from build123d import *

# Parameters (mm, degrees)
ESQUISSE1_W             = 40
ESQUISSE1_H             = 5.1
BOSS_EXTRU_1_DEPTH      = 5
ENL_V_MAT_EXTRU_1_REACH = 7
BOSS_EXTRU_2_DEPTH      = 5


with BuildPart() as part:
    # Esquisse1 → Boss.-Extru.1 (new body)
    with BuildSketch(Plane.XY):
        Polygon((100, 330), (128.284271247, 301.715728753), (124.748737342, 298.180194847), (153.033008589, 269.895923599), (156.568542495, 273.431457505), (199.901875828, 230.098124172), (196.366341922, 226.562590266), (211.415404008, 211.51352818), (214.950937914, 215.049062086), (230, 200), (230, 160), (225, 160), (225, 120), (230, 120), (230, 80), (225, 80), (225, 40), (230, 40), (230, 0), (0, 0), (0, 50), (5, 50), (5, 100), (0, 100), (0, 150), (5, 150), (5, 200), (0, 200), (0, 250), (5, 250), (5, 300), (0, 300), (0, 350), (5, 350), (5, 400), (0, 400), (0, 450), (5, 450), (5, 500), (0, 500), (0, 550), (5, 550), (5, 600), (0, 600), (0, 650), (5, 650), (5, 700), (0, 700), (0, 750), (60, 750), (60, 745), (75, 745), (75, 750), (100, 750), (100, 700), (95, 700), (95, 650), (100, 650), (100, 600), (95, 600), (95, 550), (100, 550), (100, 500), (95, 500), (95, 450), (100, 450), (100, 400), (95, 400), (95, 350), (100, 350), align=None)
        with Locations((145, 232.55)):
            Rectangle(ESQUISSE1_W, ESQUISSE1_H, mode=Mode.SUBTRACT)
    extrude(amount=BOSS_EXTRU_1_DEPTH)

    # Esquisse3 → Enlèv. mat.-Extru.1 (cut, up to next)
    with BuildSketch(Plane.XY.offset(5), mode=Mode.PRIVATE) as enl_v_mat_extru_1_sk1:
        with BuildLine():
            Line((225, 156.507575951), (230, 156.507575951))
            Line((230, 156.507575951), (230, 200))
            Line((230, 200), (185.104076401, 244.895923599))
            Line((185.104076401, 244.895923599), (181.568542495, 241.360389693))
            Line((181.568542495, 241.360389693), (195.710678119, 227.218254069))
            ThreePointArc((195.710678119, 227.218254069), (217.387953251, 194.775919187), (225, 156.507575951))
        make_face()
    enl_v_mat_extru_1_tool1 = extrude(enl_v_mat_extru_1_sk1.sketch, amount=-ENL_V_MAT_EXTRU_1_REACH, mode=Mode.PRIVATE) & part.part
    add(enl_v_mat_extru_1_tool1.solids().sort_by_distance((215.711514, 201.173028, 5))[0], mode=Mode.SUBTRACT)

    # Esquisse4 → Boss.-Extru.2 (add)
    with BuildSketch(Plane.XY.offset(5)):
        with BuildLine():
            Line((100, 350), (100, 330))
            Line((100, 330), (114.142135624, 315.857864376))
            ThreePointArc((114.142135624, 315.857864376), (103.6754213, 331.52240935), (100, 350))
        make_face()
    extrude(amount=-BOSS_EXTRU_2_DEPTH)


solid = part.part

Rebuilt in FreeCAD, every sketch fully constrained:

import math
import FreeCAD as App
import Part
import Sketcher

V = App.Vector
Q = App.Units.Quantity

doc = App.newDocument("Part")
params = doc.addObject("Spreadsheet::Sheet", "Params")
for row, (alias, value) in enumerate([
    ("sketch1_width", "5 mm"),
    ("sketch1_width2", "25 mm"),
    ("sketch1_width3", "15 mm"),
    ("sketch1_width4", "60 mm"),
    ("sketch1_width5", "230 mm"),
    ("pad1_length", "5 mm"),
    ("sketch2_radius", "100 mm"),
    ("sketch2_width", "5 mm"),
    ("sketch2_length", "5 mm"),
    ("sketch2_length2", "20 mm"),
    ("sketch3_height", "20 mm"),
    ("pad2_length", "5 mm"),
], start=1):
    params.set(f"A{row}", alias)
    params.set(f"B{row}", "=" + value)
    params.setAlias(f"B{row}", alias)

body = doc.addObject("PartDesign::Body", "Body")

sketch1 = body.newObject("Sketcher::SketchObject", "Sketch")
sketch1.AttachmentSupport = (doc.getObject("XY_Plane"), [""])
sketch1.MapMode = "FlatFace"
sketch1.addGeometry([
    Part.LineSegment(V(128.3, 301.7, 0), V(100, 330, 0)),
    Part.LineSegment(V(100, 330, 0), V(100, 350, 0)),
    Part.LineSegment(V(100, 350, 0), V(95, 350, 0)),
    Part.LineSegment(V(95, 350, 0), V(95, 400, 0)),
    Part.LineSegment(V(95, 400, 0), V(100, 400, 0)),
    Part.LineSegment(V(100, 400, 0), V(100, 450, 0)),
    Part.LineSegment(V(100, 450, 0), V(95, 450, 0)),
    Part.LineSegment(V(95, 450, 0), V(95, 500, 0)),
    Part.LineSegment(V(95, 500, 0), V(100, 500, 0)),
    Part.LineSegment(V(100, 500, 0), V(100, 550, 0)),
    Part.LineSegment(V(100, 550, 0), V(95, 550, 0)),
    Part.LineSegment(V(95, 550, 0), V(95, 600, 0)),
    Part.LineSegment(V(95, 600, 0), V(100, 600, 0)),
    Part.LineSegment(V(100, 600, 0), V(100, 650, 0)),
    Part.LineSegment(V(100, 650, 0), V(95, 650, 0)),
    Part.LineSegment(V(95, 650, 0), V(95, 700, 0)),
    Part.LineSegment(V(95, 700, 0), V(100, 700, 0)),
    Part.LineSegment(V(100, 700, 0), V(100, 750, 0)),
    Part.LineSegment(V(100, 750, 0), V(75, 750, 0)),
    Part.LineSegment(V(75, 750, 0), V(75, 745, 0)),
    Part.LineSegment(V(75, 745, 0), V(60, 745, 0)),
    Part.LineSegment(V(60, 745, 0), V(60, 750, 0)),
    Part.LineSegment(V(60, 750, 0), V(0, 750, 0)),
    Part.LineSegment(V(0, 750, 0), V(0, 700, 0)),
    Part.LineSegment(V(0, 700, 0), V(5, 700, 0)),
    Part.LineSegment(V(5, 700, 0), V(5, 650, 0)),
    Part.LineSegment(V(5, 650, 0), V(0, 650, 0)),
    Part.LineSegment(V(0, 650, 0), V(0, 600, 0)),
    Part.LineSegment(V(0, 600, 0), V(5, 600, 0)),
    Part.LineSegment(V(5, 600, 0), V(5, 550, 0)),
    Part.LineSegment(V(5, 550, 0), V(0, 550, 0)),
    Part.LineSegment(V(0, 550, 0), V(0, 500, 0)),
    Part.LineSegment(V(0, 500, 0), V(5, 500, 0)),
    Part.LineSegment(V(5, 500, 0), V(5, 450, 0)),
    Part.LineSegment(V(5, 450, 0), V(0, 450, 0)),
    Part.LineSegment(V(0, 450, 0), V(0, 400, 0)),
    Part.LineSegment(V(0, 400, 0), V(5, 400, 0)),
    Part.LineSegment(V(5, 400, 0), V(5, 350, 0)),
    Part.LineSegment(V(5, 350, 0), V(0, 350, 0)),
    Part.LineSegment(V(0, 350, 0), V(0, 300, 0)),
    Part.LineSegment(V(0, 300, 0), V(5, 300, 0)),
    Part.LineSegment(V(5, 300, 0), V(5, 250, 0)),
    Part.LineSegment(V(5, 250, 0), V(0, 250, 0)),
    Part.LineSegment(V(0, 250, 0), V(0, 200, 0)),
    Part.LineSegment(V(0, 200, 0), V(5, 200, 0)),
    Part.LineSegment(V(5, 200, 0), V(5, 150, 0)),
    Part.LineSegment(V(5, 150, 0), V(0, 150, 0)),
    Part.LineSegment(V(0, 150, 0), V(0, 100, 0)),
    Part.LineSegment(V(0, 100, 0), V(5, 100, 0)),
    Part.LineSegment(V(5, 100, 0), V(5, 50, 0)),
    Part.LineSegment(V(5, 50, 0), V(0, 50, 0)),
    Part.LineSegment(V(0, 50, 0), V(0, 0, 0)),
    Part.LineSegment(V(0, 0, 0), V(230, 0, 0)),
    Part.LineSegment(V(230, 0, 0), V(230, 40, 0)),
    Part.LineSegment(V(230, 40, 0), V(225, 40, 0)),
    Part.LineSegment(V(225, 40, 0), V(225, 80, 0)),
    Part.LineSegment(V(225, 80, 0), V(230, 80, 0)),
    Part.LineSegment(V(230, 80, 0), V(230, 120, 0)),
    Part.LineSegment(V(230, 120, 0), V(225, 120, 0)),
    Part.LineSegment(V(225, 120, 0), V(225, 160, 0)),
    Part.LineSegment(V(225, 160, 0), V(230, 160, 0)),
    Part.LineSegment(V(230, 160, 0), V(230, 200, 0)),
    Part.LineSegment(V(230, 200, 0), V(215, 215, 0)),
    Part.LineSegment(V(215, 215, 0), V(211.4, 211.5, 0)),
    Part.LineSegment(V(211.4, 211.5, 0), V(196.4, 226.6, 0)),
    Part.LineSegment(V(196.4, 226.6, 0), V(199.9, 230.1, 0)),
    Part.LineSegment(V(199.9, 230.1, 0), V(156.6, 273.4, 0)),
    Part.LineSegment(V(156.6, 273.4, 0), V(153, 269.9, 0)),
    Part.LineSegment(V(153, 269.9, 0), V(124.7, 298.2, 0)),
    Part.LineSegment(V(124.7, 298.2, 0), V(128.3, 301.7, 0)),
    Part.LineSegment(V(125, 230, 0), V(125, 235.1, 0)),
    Part.LineSegment(V(125, 235.1, 0), V(165, 235.1, 0)),
    Part.LineSegment(V(165, 235.1, 0), V(165, 230, 0)),
    Part.LineSegment(V(165, 230, 0), V(125, 230, 0)),
], False)
sketch1.addConstraint([
    Sketcher.Constraint("Coincident", 0, 2, 1, 1),
    Sketcher.Constraint("Coincident", 1, 2, 2, 1),
    Sketcher.Constraint("Coincident", 2, 2, 3, 1),
    Sketcher.Constraint("Coincident", 3, 2, 4, 1),
    Sketcher.Constraint("Coincident", 4, 2, 5, 1),
    Sketcher.Constraint("Coincident", 5, 2, 6, 1),
    Sketcher.Constraint("Coincident", 6, 2, 7, 1),
    Sketcher.Constraint("Coincident", 7, 2, 8, 1),
    Sketcher.Constraint("Coincident", 8, 2, 9, 1),
    Sketcher.Constraint("Coincident", 9, 2, 10, 1),
    Sketcher.Constraint("Coincident", 10, 2, 11, 1),
    Sketcher.Constraint("Coincident", 11, 2, 12, 1),
    Sketcher.Constraint("Coincident", 12, 2, 13, 1),
    Sketcher.Constraint("Coincident", 13, 2, 14, 1),
    Sketcher.Constraint("Coincident", 14, 2, 15, 1),
    Sketcher.Constraint("Coincident", 15, 2, 16, 1),
    Sketcher.Constraint("Coincident", 16, 2, 17, 1),
    Sketcher.Constraint("Coincident", 17, 2, 18, 1),
    Sketcher.Constraint("Coincident", 18, 2, 19, 1),
    Sketcher.Constraint("Coincident", 19, 2, 20, 1),
    Sketcher.Constraint("Coincident", 20, 2, 21, 1),
    Sketcher.Constraint("Coincident", 21, 2, 22, 1),
    Sketcher.Constraint("Coincident", 22, 2, 23, 1),
    Sketcher.Constraint("Coincident", 23, 2, 24, 1),
    Sketcher.Constraint("Coincident", 24, 2, 25, 1),
    Sketcher.Constraint("Coincident", 25, 2, 26, 1),
    Sketcher.Constraint("Coincident", 26, 2, 27, 1),
    Sketcher.Constraint("Coincident", 27, 2, 28, 1),
    Sketcher.Constraint("Coincident", 28, 2, 29, 1),
    Sketcher.Constraint("Coincident", 29, 2, 30, 1),
    Sketcher.Constraint("Coincident", 30, 2, 31, 1),
    Sketcher.Constraint("Coincident", 31, 2, 32, 1),
    Sketcher.Constraint("Coincident", 32, 2, 33, 1),
    Sketcher.Constraint("Coincident", 33, 2, 34, 1),
    Sketcher.Constraint("Coincident", 34, 2, 35, 1),
    Sketcher.Constraint("Coincident", 35, 2, 36, 1),
    Sketcher.Constraint("Coincident", 36, 2, 37, 1),
    Sketcher.Constraint("Coincident", 37, 2, 38, 1),
    Sketcher.Constraint("Coincident", 38, 2, 39, 1),
    Sketcher.Constraint("Coincident", 39, 2, 40, 1),
    Sketcher.Constraint("Coincident", 40, 2, 41, 1),
    Sketcher.Constraint("Coincident", 41, 2, 42, 1),
    Sketcher.Constraint("Coincident", 42, 2, 43, 1),
    Sketcher.Constraint("Coincident", 43, 2, 44, 1),
    Sketcher.Constraint("Coincident", 44, 2, 45, 1),
    Sketcher.Constraint("Coincident", 45, 2, 46, 1),
    Sketcher.Constraint("Coincident", 46, 2, 47, 1),
    Sketcher.Constraint("Coincident", 47, 2, 48, 1),
    Sketcher.Constraint("Coincident", 48, 2, 49, 1),
    Sketcher.Constraint("Coincident", 49, 2, 50, 1),
    Sketcher.Constraint("Coincident", 50, 2, 51, 1),
    Sketcher.Constraint("Coincident", 51, 2, 52, 1),
    Sketcher.Constraint("Coincident", 52, 2, 53, 1),
    Sketcher.Constraint("Coincident", 53, 2, 54, 1),
    Sketcher.Constraint("Coincident", 54, 2, 55, 1),
    Sketcher.Constraint("Coincident", 55, 2, 56, 1),
    Sketcher.Constraint("Coincident", 56, 2, 57, 1),
    Sketcher.Constraint("Coincident", 57, 2, 58, 1),
    Sketcher.Constraint("Coincident", 58, 2, 59, 1),
    Sketcher.Constraint("Coincident", 59, 2, 60, 1),
    Sketcher.Constraint("Coincident", 60, 2, 61, 1),
    Sketcher.Constraint("Coincident", 61, 2, 62, 1),
    Sketcher.Constraint("Coincident", 62, 2, 63, 1),
    Sketcher.Constraint("Coincident", 63, 2, 64, 1),
    Sketcher.Constraint("Coincident", 64, 2, 65, 1),
    Sketcher.Constraint("Coincident", 65, 2, 66, 1),
    Sketcher.Constraint("Coincident", 66, 2, 67, 1),
    Sketcher.Constraint("Coincident", 67, 2, 68, 1),
    Sketcher.Constraint("Coincident", 68, 2, 69, 1),
    Sketcher.Constraint("Coincident", 69, 2, 0, 1),
    Sketcher.Constraint("Coincident", 70, 2, 71, 1),
    Sketcher.Constraint("Coincident", 71, 2, 72, 1),
    Sketcher.Constraint("Coincident", 72, 2, 73, 1),
    Sketcher.Constraint("Coincident", 73, 2, 70, 1),
    Sketcher.Constraint("Vertical", 1),
    Sketcher.Constraint("Horizontal", 2),
    Sketcher.Constraint("Vertical", 3),
    Sketcher.Constraint("Horizontal", 4),
    Sketcher.Constraint("Vertical", 5),
    Sketcher.Constraint("Horizontal", 6),
    Sketcher.Constraint("Vertical", 7),
    Sketcher.Constraint("Horizontal", 8),
    Sketcher.Constraint("Vertical", 9),
    Sketcher.Constraint("Horizontal", 10),
    Sketcher.Constraint("Vertical", 11),
    Sketcher.Constraint("Horizontal", 12),
    Sketcher.Constraint("Vertical", 13),
    Sketcher.Constraint("Horizontal", 14),
    Sketcher.Constraint("Vertical", 15),
    Sketcher.Constraint("Horizontal", 16),
    Sketcher.Constraint("Vertical", 17),
    Sketcher.Constraint("Horizontal", 18),
    Sketcher.Constraint("Vertical", 19),
    Sketcher.Constraint("Horizontal", 20),
    Sketcher.Constraint("Vertical", 21),
    Sketcher.Constraint("Horizontal", 22),
    Sketcher.Constraint("Vertical", 23),
    Sketcher.Constraint("Horizontal", 24),
    Sketcher.Constraint("Vertical", 25),
    Sketcher.Constraint("Horizontal", 26),
    Sketcher.Constraint("Vertical", 27),
    Sketcher.Constraint("Horizontal", 28),
    Sketcher.Constraint("Vertical", 29),
    Sketcher.Constraint("Horizontal", 30),
    Sketcher.Constraint("Vertical", 31),
    Sketcher.Constraint("Horizontal", 32),
    Sketcher.Constraint("Vertical", 33),
    Sketcher.Constraint("Horizontal", 34),
    Sketcher.Constraint("Vertical", 35),
    Sketcher.Constraint("Horizontal", 36),
    Sketcher.Constraint("Vertical", 37),
    Sketcher.Constraint("Horizontal", 38),
    Sketcher.Constraint("Vertical", 39),
    Sketcher.Constraint("Horizontal", 40),
    Sketcher.Constraint("Vertical", 41),
    Sketcher.Constraint("Horizontal", 42),
    Sketcher.Constraint("Vertical", 43),
    Sketcher.Constraint("Horizontal", 44),
    Sketcher.Constraint("Vertical", 45),
    Sketcher.Constraint("Horizontal", 46),
    Sketcher.Constraint("Vertical", 47),
    Sketcher.Constraint("Horizontal", 48),
    Sketcher.Constraint("Vertical", 49),
    Sketcher.Constraint("Horizontal", 50),
    Sketcher.Constraint("Vertical", 51),
    Sketcher.Constraint("Horizontal", 52),
    Sketcher.Constraint("Vertical", 53),
    Sketcher.Constraint("Horizontal", 54),
    Sketcher.Constraint("Vertical", 55),
    Sketcher.Constraint("Horizontal", 56),
    Sketcher.Constraint("Vertical", 57),
    Sketcher.Constraint("Horizontal", 58),
    Sketcher.Constraint("Vertical", 59),
    Sketcher.Constraint("Horizontal", 60),
    Sketcher.Constraint("Vertical", 61),
    Sketcher.Constraint("Vertical", 70),
    Sketcher.Constraint("Horizontal", 71),
    Sketcher.Constraint("Vertical", 72),
    Sketcher.Constraint("Horizontal", 73),
    Sketcher.Constraint("Coincident", 51, 2, -1, 1),
    Sketcher.Constraint("PointOnObject", 22, 2, -2),
    Sketcher.Constraint("PointOnObject", 26, 2, -2),
    Sketcher.Constraint("PointOnObject", 30, 2, -2),
    Sketcher.Constraint("PointOnObject", 34, 2, -2),
    Sketcher.Constraint("PointOnObject", 38, 2, -2),
    Sketcher.Constraint("PointOnObject", 42, 2, -2),
    Sketcher.Constraint("PointOnObject", 46, 2, -2),
    Sketcher.Constraint("Parallel", 0, 62),
    Sketcher.Constraint("Perpendicular", 62, 63),
    Sketcher.Constraint("Perpendicular", 63, 64),
    Sketcher.Constraint("Perpendicular", 64, 65),
    Sketcher.Constraint("Perpendicular", 65, 66),
    Sketcher.Constraint("Perpendicular", 66, 67),
    Sketcher.Constraint("Perpendicular", 67, 68),
    Sketcher.Constraint("Perpendicular", 68, 69),
    Sketcher.Constraint("Horizontal", 18, 2, 21, 2),
    Sketcher.Constraint("Horizontal", 16, 2, 23, 2),
    Sketcher.Constraint("Horizontal", 14, 2, 25, 2),
    Sketcher.Constraint("Horizontal", 12, 2, 27, 2),
    Sketcher.Constraint("Horizontal", 10, 2, 29, 2),
    Sketcher.Constraint("Horizontal", 8, 2, 31, 2),
    Sketcher.Constraint("Horizontal", 6, 2, 33, 2),
    Sketcher.Constraint("Horizontal", 4, 2, 35, 2),
    Sketcher.Constraint("Horizontal", 2, 2, 37, 2),
    Sketcher.Constraint("Horizontal", 44, 2, 61, 2),
    Sketcher.Constraint("Vertical", 1, 2, 4, 2),
    Sketcher.Constraint("Vertical", 3, 2, 6, 2),
    Sketcher.Constraint("Vertical", 5, 2, 8, 2),
    Sketcher.Constraint("Vertical", 7, 2, 10, 2),
    Sketcher.Constraint("Vertical", 9, 2, 12, 2),
    Sketcher.Constraint("Vertical", 11, 2, 14, 2),
    Sketcher.Constraint("Vertical", 13, 2, 16, 2),
    Sketcher.Constraint("Vertical", 25, 2, 28, 2),
    Sketcher.Constraint("Vertical", 29, 2, 32, 2),
    Sketcher.Constraint("Vertical", 33, 2, 36, 2),
    Sketcher.Constraint("Vertical", 37, 2, 40, 2),
    Sketcher.Constraint("Vertical", 41, 2, 44, 2),
    Sketcher.Constraint("Vertical", 45, 2, 48, 2),
    Sketcher.Constraint("Vertical", 53, 2, 56, 2),
    Sketcher.Constraint("Vertical", 55, 2, 58, 2),
    Sketcher.Constraint("Vertical", 57, 2, 60, 2),
    Sketcher.Constraint("Equal", 16, 24),
    Sketcher.Constraint("Equal", 50, 54),
    Sketcher.Constraint("Equal", 3, 5),
    Sketcher.Constraint("Equal", 5, 7),
    Sketcher.Constraint("Equal", 7, 9),
    Sketcher.Constraint("Equal", 9, 11),
    Sketcher.Constraint("Equal", 11, 13),
    Sketcher.Constraint("Equal", 13, 15),
    Sketcher.Constraint("Equal", 15, 17),
    Sketcher.Constraint("Equal", 60, 19),
    Sketcher.Constraint("Equal", 37, 39),
    Sketcher.Constraint("Equal", 39, 41),
    Sketcher.Constraint("Equal", 41, 43),
    Sketcher.Constraint("Equal", 43, 45),
    Sketcher.Constraint("Equal", 45, 47),
    Sketcher.Constraint("Equal", 47, 49),
    Sketcher.Constraint("Equal", 49, 51),
    Sketcher.Constraint("Equal", 73, 53),
    Sketcher.Constraint("Equal", 53, 55),
    Sketcher.Constraint("Equal", 55, 57),
    Sketcher.Constraint("Equal", 57, 59),
    Sketcher.Constraint("Equal", 59, 61),
    Sketcher.Constraint("Equal", 62, 64),
    Sketcher.Constraint("Equal", 63, 65),
    Sketcher.Constraint("Equal", 65, 67),
    Sketcher.Constraint("Equal", 0, 68),
    Sketcher.Constraint("Equal", 67, 69),
    Sketcher.Constraint("DistanceX", 2, 2, 2, 1, Q("5 mm")),
    Sketcher.Constraint("DistanceX", 18, 2, 18, 1, Q("25 mm")),
    Sketcher.Constraint("DistanceX", 20, 2, 20, 1, Q("15 mm")),
    Sketcher.Constraint("DistanceX", 22, 2, 22, 1, Q("60 mm")),
    Sketcher.Constraint("DistanceX", 52, 1, 52, 2, Q("230 mm")),
    Sketcher.Constraint("DistanceX", 71, 1, 71, 2, Q("40 mm")),
    Sketcher.Constraint("DistanceY", 1, 1, 1, 2, Q("20 mm")),
    Sketcher.Constraint("Distance", 0, Q("40 mm")),
    Sketcher.Constraint("Distance", 63, Q("5 mm")),
    Sketcher.Constraint("DistanceY", 70, 1, 70, 2, Q("5.1 mm")),
    Sketcher.Constraint("DistanceX", -1, 1, 70, 2, Q("125 mm")),
    Sketcher.Constraint("DistanceY", -1, 1, 72, 2, Q("230 mm")),
    Sketcher.Constraint("DistanceY", -1, 1, 63, 2, Q("211.513528 mm")),
])
sketch1.setExpression("Constraints[208]", "Params.sketch1_width")
sketch1.setExpression("Constraints[209]", "Params.sketch1_width2")
sketch1.setExpression("Constraints[210]", "Params.sketch1_width3")
sketch1.setExpression("Constraints[211]", "Params.sketch1_width4")
sketch1.setExpression("Constraints[212]", "Params.sketch1_width5")
pad1 = body.newObject("PartDesign::Pad", "Pad")
pad1.Profile = sketch1
pad1.setExpression("Length", "Params.pad1_length")

sketch2 = body.newObject("Sketcher::SketchObject", "Sketch001")
sketch2.AttachmentSupport = (doc.getObject("XY_Plane"), [""])
sketch2.MapMode = "FlatFace"
sketch2.AttachmentOffset = App.Placement(V(0, 0, 5), App.Rotation())
sketch2.addGeometry([
    Part.LineSegment(V(225, 157, 0), V(230, 157, 0)),
    Part.LineSegment(V(230, 157, 0), V(230, 200, 0)),
    Part.LineSegment(V(230, 200, 0), V(185, 245, 0)),
    Part.LineSegment(V(185, 245, 0), V(182, 241, 0)),
    Part.LineSegment(V(182, 241, 0), V(196, 227, 0)),
    Part.ArcOfCircle(Part.Circle(V(125, 157, 0), V(0, 0, 1), 100), math.radians(0), math.radians(45)),
], False)
sketch2.addConstraint([
    Sketcher.Constraint("Coincident", 0, 2, 1, 1),
    Sketcher.Constraint("Coincident", 1, 2, 2, 1),
    Sketcher.Constraint("Coincident", 2, 2, 3, 1),
    Sketcher.Constraint("Coincident", 3, 2, 4, 1),
    Sketcher.Constraint("Tangent", 4, 2, 5, 2),
    Sketcher.Constraint("Coincident", 5, 1, 0, 1),
    Sketcher.Constraint("Horizontal", 0),
    Sketcher.Constraint("Vertical", 1),
    Sketcher.Constraint("Perpendicular", 2, 3),
    Sketcher.Constraint("Perpendicular", 3, 4),
    Sketcher.Constraint("Horizontal", 5, 3, 0, 2),
    Sketcher.Constraint("Radius", 5, Q("100 mm")),
    Sketcher.Constraint("DistanceX", 0, 1, 0, 2, Q("5 mm")),
    Sketcher.Constraint("Angle", 2, Q("135 deg")),
    Sketcher.Constraint("Distance", 3, Q("5 mm")),
    Sketcher.Constraint("Distance", 4, Q("20 mm")),
    Sketcher.Constraint("DistanceX", -1, 1, 5, 3, Q("125 mm")),
    Sketcher.Constraint("DistanceY", -1, 1, 1, 2, Q("200 mm")),
])
sketch2.setExpression("Constraints[11]", "Params.sketch2_radius")
sketch2.setExpression("Constraints[12]", "Params.sketch2_width")
sketch2.setExpression("Constraints[14]", "Params.sketch2_length")
sketch2.setExpression("Constraints[15]", "Params.sketch2_length2")
pocket1 = body.newObject("PartDesign::Pocket", "Pocket")
pocket1.Profile = sketch2
pocket1.Type = "UpToFirst"

sketch3 = body.newObject("Sketcher::SketchObject", "Sketch002")
sketch3.AttachmentSupport = (doc.getObject("XY_Plane"), [""])
sketch3.MapMode = "FlatFace"
sketch3.AttachmentOffset = App.Placement(V(0, 0, 5), App.Rotation())
sketch3.addGeometry([
    Part.LineSegment(V(100, 350, 0), V(100, 330, 0)),
    Part.LineSegment(V(100, 330, 0), V(114, 316, 0)),
    Part.ArcOfCircle(Part.Circle(V(148, 350, 0), V(0, 0, 1), 48), math.radians(-180), math.radians(-135)),
], False)
sketch3.addConstraint([
    Sketcher.Constraint("Coincident", 0, 2, 1, 1),
    Sketcher.Constraint("Tangent", 1, 2, 2, 2),
    Sketcher.Constraint("Tangent", 2, 1, 0, 1),
    Sketcher.Constraint("Vertical", 0),
    Sketcher.Constraint("DistanceY", 0, 2, 0, 1, Q("20 mm")),
    Sketcher.Constraint("Angle", 1, Q("-45 deg")),
    Sketcher.Constraint("DistanceY", -1, 1, 2, 3, Q("350 mm")),
    Sketcher.Constraint("DistanceX", -1, 1, 0, 2, Q("100 mm")),
])
sketch3.setExpression("Constraints[4]", "Params.sketch3_height")
pad2 = body.newObject("PartDesign::Pad", "Pad001")
pad2.Profile = sketch3
pad2.setExpression("Length", "Params.pad2_length")
pad2.Reversed = True

doc.recompute()
